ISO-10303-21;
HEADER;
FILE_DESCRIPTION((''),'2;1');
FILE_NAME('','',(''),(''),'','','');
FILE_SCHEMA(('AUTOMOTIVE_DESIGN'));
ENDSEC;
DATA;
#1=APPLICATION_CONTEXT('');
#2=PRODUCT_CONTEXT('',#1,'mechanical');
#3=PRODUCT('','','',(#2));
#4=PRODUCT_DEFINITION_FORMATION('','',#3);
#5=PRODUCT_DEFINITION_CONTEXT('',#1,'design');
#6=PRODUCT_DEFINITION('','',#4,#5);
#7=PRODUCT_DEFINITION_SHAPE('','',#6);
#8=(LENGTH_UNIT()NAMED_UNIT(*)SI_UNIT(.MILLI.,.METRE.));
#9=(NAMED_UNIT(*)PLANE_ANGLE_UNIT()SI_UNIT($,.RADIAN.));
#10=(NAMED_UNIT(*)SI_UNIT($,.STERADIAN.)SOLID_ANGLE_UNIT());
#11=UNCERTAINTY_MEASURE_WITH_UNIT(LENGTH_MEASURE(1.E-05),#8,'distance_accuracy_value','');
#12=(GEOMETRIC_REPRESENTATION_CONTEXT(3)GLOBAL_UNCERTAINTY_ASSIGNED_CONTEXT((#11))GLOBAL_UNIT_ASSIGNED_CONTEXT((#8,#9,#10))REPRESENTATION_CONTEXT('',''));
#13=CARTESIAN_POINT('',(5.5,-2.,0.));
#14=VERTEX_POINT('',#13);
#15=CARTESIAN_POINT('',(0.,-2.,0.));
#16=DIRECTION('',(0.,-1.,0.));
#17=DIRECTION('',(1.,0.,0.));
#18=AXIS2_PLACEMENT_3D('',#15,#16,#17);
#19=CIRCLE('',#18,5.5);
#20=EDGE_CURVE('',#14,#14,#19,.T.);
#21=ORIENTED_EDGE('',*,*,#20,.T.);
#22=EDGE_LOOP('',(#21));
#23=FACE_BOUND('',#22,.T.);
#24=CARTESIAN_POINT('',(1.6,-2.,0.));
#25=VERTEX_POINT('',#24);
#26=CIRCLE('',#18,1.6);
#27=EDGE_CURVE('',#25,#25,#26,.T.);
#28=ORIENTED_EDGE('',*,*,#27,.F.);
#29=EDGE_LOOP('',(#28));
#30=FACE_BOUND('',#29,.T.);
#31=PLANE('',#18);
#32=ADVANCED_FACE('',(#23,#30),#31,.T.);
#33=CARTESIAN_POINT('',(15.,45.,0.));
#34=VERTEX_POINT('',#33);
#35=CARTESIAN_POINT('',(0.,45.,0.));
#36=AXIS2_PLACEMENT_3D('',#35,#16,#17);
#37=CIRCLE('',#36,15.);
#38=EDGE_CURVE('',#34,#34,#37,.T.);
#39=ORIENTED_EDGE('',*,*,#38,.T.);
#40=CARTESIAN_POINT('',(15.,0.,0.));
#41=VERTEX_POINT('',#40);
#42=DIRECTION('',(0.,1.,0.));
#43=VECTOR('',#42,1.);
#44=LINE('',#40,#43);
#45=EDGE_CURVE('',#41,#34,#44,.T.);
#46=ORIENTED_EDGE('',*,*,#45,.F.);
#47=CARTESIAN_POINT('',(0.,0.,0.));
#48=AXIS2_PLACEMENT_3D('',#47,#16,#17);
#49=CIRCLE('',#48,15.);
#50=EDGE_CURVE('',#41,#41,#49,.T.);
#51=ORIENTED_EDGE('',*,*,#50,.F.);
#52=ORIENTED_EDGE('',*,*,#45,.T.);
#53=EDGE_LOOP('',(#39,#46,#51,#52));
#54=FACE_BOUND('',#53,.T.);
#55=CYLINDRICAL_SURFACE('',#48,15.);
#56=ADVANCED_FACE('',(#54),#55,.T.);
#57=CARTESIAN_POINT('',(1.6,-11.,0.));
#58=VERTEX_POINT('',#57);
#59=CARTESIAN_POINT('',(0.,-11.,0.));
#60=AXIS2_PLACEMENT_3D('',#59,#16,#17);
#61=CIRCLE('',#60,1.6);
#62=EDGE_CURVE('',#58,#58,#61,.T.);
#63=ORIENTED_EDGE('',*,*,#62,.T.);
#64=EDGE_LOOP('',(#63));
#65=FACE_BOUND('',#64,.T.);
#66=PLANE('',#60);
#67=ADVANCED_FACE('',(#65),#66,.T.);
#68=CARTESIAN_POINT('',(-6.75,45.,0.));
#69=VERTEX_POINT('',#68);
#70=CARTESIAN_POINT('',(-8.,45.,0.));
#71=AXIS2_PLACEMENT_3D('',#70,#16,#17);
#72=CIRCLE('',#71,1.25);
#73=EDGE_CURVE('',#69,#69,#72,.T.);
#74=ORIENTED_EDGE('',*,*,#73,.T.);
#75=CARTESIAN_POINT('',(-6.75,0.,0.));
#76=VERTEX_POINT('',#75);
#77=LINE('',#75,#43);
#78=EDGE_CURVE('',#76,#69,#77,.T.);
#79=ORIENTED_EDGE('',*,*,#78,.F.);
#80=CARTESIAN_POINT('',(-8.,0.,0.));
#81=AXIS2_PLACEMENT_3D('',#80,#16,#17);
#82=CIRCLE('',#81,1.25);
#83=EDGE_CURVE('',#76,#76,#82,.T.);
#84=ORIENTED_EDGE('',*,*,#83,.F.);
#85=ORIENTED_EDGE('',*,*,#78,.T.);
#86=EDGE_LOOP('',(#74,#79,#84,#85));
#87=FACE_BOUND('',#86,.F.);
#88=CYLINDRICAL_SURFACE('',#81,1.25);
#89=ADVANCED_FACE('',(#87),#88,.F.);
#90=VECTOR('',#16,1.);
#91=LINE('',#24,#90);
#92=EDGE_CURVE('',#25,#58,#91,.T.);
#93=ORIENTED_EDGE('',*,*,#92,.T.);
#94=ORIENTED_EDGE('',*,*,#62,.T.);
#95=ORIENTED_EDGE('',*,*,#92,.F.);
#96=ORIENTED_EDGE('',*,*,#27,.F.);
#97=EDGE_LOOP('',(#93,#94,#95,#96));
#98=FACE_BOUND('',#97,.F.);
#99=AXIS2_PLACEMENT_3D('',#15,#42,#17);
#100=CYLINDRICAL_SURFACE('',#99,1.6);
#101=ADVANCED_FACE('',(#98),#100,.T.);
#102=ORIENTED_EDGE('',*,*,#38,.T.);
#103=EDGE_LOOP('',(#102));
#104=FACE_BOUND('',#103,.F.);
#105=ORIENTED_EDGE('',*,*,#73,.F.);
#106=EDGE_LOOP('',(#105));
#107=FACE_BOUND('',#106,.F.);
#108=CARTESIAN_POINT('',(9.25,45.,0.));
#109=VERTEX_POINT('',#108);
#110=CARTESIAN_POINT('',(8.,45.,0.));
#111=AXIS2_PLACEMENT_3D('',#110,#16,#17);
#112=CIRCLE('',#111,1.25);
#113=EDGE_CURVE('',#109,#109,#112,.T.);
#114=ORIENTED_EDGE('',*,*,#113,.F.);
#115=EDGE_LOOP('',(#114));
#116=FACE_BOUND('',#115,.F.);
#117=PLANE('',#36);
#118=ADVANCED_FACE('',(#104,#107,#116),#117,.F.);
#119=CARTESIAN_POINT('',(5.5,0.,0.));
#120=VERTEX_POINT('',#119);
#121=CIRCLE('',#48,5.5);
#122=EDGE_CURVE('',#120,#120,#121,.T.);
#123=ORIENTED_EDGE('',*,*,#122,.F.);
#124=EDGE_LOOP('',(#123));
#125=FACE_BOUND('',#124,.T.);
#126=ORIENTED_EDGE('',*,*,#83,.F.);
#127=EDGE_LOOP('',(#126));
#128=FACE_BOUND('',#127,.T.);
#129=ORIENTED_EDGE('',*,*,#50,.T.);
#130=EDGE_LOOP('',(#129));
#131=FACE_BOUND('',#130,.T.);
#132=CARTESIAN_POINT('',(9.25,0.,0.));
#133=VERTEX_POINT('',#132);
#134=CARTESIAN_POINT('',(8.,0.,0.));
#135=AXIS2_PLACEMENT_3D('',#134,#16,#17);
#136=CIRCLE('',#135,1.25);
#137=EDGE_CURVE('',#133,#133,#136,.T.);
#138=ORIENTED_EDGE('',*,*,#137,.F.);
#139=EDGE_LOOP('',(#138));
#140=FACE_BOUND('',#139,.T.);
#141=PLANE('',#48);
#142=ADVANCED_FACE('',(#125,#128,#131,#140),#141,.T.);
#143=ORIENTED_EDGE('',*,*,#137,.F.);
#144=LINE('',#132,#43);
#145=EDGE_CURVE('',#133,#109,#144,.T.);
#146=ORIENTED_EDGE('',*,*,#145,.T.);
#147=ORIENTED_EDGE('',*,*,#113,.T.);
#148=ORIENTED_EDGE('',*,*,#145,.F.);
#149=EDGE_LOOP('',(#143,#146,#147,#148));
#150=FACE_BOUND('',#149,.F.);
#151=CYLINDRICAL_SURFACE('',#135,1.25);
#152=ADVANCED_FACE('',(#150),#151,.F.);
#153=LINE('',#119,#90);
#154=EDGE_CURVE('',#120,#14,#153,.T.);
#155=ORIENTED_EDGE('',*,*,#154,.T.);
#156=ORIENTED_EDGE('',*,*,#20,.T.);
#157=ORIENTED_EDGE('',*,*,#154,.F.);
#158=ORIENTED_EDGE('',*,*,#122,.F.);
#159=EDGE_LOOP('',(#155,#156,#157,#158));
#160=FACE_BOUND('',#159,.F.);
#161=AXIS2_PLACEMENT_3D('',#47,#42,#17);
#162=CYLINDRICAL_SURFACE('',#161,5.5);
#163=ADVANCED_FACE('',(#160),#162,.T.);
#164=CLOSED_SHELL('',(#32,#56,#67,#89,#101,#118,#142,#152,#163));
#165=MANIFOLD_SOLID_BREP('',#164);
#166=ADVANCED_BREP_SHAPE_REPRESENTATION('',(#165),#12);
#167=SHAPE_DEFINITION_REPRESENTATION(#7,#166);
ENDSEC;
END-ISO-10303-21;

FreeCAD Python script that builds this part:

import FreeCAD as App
import Part
import Sketcher
from FreeCAD import Vector

doc = App.newDocument("Part")
body = doc.addObject("PartDesign::Body", "Body")

sketch1 = doc.addObject("Sketcher::SketchObject", "Sketch")
body.addObject(sketch1)
sketch1.AttachmentSupport = (doc.XZ_Plane, [""])
sketch1.MapMode = "FlatFace"
sketch1.addGeometry(Part.Circle(Vector(0, 0, 0), Vector(0, 0, 1), 15), False)
sketch1.addGeometry(Part.Circle(Vector(-8, 0, 0), Vector(0, 0, 1), 1.25), False)
sketch1.addGeometry(Part.Circle(Vector(8, 0, 0), Vector(0, 0, 1), 1.25), False)
sketch1.addConstraint(Sketcher.Constraint("Coincident", 0, 3, -1, 1))
sketch1.addConstraint(Sketcher.Constraint("Equal", 1, 2))
sketch1.addConstraint(Sketcher.Constraint("Symmetric", 1, 3, 2, 3, -1, 1))
sketch1.addConstraint(Sketcher.Constraint("PointOnObject", 1, 3, -1))
sketch1.addConstraint(Sketcher.Constraint("Diameter", 0, 30.0))
sketch1.addConstraint(Sketcher.Constraint("Diameter", 1, 2.5))
sketch1.addConstraint(Sketcher.Constraint("DistanceX", 1, 3, -1, 1, 8.0))
pad1 = doc.addObject("PartDesign::Pad", "Pad")
body.addObject(pad1)
pad1.Profile = sketch1
pad1.Length = 45
pad1.Reversed = True

sketch2 = doc.addObject("Sketcher::SketchObject", "Sketch001")
body.addObject(sketch2)
sketch2.AttachmentSupport = (doc.XZ_Plane, [""])
sketch2.MapMode = "FlatFace"
sketch2.addGeometry(Part.Circle(Vector(0, 0, 0), Vector(0, 0, 1), 5.5), False)
sketch2.addConstraint(Sketcher.Constraint("Coincident", 0, 3, -1, 1))
sketch2.addConstraint(Sketcher.Constraint("Diameter", 0, 11.0))
pad2 = doc.addObject("PartDesign::Pad", "Pad001")
body.addObject(pad2)
pad2.Profile = sketch2
pad2.Length = 2

sketch3 = doc.addObject("Sketcher::SketchObject", "Sketch002")
body.addObject(sketch3)
sketch3.AttachmentSupport = (doc.XZ_Plane, [""])
sketch3.MapMode = "FlatFace"
sketch3.AttachmentOffset = App.Placement(Vector(0, 0, 2), App.Rotation())
sketch3.addGeometry(Part.Circle(Vector(0, 0, 0), Vector(0, 0, 1), 1.6), False)
sketch3.addConstraint(Sketcher.Constraint("Coincident", 0, 3, -1, 1))
sketch3.addConstraint(Sketcher.Constraint("Diameter", 0, 3.2))
pad3 = doc.addObject("PartDesign::Pad", "Pad002")
body.addObject(pad3)
pad3.Profile = sketch3
pad3.Length = 9

doc.recompute()
